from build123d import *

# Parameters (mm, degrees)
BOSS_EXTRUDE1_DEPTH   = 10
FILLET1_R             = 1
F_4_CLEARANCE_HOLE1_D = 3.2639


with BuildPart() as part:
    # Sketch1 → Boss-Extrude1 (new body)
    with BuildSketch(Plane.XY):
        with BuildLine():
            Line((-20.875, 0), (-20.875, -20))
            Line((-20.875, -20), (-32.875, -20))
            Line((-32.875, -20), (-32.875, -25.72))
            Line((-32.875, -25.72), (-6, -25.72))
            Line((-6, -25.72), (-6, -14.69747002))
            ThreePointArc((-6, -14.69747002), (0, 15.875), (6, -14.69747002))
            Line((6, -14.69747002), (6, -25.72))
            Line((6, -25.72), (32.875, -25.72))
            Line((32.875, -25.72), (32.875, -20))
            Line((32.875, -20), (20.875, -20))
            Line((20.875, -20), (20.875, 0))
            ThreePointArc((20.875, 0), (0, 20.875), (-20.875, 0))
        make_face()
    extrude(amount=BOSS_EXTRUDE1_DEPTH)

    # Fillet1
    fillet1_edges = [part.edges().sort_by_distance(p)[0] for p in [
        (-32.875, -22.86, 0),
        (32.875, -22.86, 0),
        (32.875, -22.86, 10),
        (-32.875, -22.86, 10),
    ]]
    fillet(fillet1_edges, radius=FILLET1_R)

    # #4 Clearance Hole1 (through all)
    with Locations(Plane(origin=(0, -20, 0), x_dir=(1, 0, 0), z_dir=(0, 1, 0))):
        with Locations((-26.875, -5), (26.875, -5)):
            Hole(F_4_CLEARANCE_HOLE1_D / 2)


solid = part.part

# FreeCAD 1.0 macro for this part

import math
import FreeCAD as App
import Part
import Sketcher
from FreeCAD import Vector
Q = App.Units.Quantity


def edges_at(feature, points):
    """Names of the edges that pass closest to the given points."""
    edges = feature.Shape.Edges
    near = lambda p: min(range(len(edges)), key=lambda i: edges[i].distToShape(Part.Vertex(*p))[0])
    return sorted({f"Edge{near(p) + 1}" for p in points})

doc = App.newDocument("Part")
body = doc.addObject("PartDesign::Body", "Body")

# Sketch on XY plane
sketch1 = body.newObject("Sketcher::SketchObject", "Sketch")
sketch1.AttachmentSupport = (doc.getObject("XY_Plane"), [""])
sketch1.MapMode = "FlatFace"
sketch1.addGeometry([
    Part.LineSegment(Vector(-21, 0, 0), Vector(-21, -20, 0)),  # 0
    Part.LineSegment(Vector(-21, -20, 0), Vector(-33, -20, 0)),  # 1
    Part.LineSegment(Vector(-33, -20, 0), Vector(-33, -26, 0)),  # 2
    Part.LineSegment(Vector(-33, -26, 0), Vector(-6, -26, 0)),  # 3
    Part.LineSegment(Vector(-6, -26, 0), Vector(-6, -15, 0)),  # 4
    Part.ArcOfCircle(Part.Circle(Vector(0, 0, 0), Vector(0, 0, 1), 16), math.radians(-68), math.radians(248)),  # 5
    Part.LineSegment(Vector(6, -15, 0), Vector(6, -26, 0)),  # 6
    Part.LineSegment(Vector(6, -26, 0), Vector(33, -26, 0)),  # 7
    Part.LineSegment(Vector(33, -26, 0), Vector(33, -20, 0)),  # 8
    Part.LineSegment(Vector(33, -20, 0), Vector(21, -20, 0)),  # 9
    Part.LineSegment(Vector(21, -20, 0), Vector(21, 0, 0)),  # 10
    Part.ArcOfCircle(Part.Circle(Vector(0, 0, 0), Vector(0, 0, 1), 21), math.radians(0), math.radians(180)),  # 11
], False)
sketch1.addConstraint([
    Sketcher.Constraint("Coincident", 0, 2, 1, 1),
    Sketcher.Constraint("Coincident", 1, 2, 2, 1),
    Sketcher.Constraint("Coincident", 2, 2, 3, 1),
    Sketcher.Constraint("Coincident", 3, 2, 4, 1),
    Sketcher.Constraint("Coincident", 4, 2, 5, 2),
    Sketcher.Constraint("Coincident", 5, 1, 6, 1),
    Sketcher.Constraint("Coincident", 6, 2, 7, 1),
    Sketcher.Constraint("Coincident", 7, 2, 8, 1),
    Sketcher.Constraint("Coincident", 8, 2, 9, 1),
    Sketcher.Constraint("Coincident", 9, 2, 10, 1),
    Sketcher.Constraint("Tangent", 10, 2, 11, 1),
    Sketcher.Constraint("Tangent", 11, 2, 0, 1),
    Sketcher.Constraint("Vertical", 0),
    Sketcher.Constraint("Horizontal", 1),
    Sketcher.Constraint("Vertical", 2),
    Sketcher.Constraint("Horizontal", 3),
    Sketcher.Constraint("Vertical", 4),
    Sketcher.Constraint("Vertical", 6),
    Sketcher.Constraint("Horizontal", 7),
    Sketcher.Constraint("Vertical", 8),
    Sketcher.Constraint("Horizontal", 9),
    Sketcher.Constraint("Vertical", 10),
    Sketcher.Constraint("Coincident", 5, 3, -1, 1),
    Sketcher.Constraint("Coincident", 11, 3, -1, 1),
    Sketcher.Constraint("Symmetric", 3, 2, 6, 2, -2),
    Sketcher.Constraint("Symmetric", 1, 2, 8, 2, -2),
    Sketcher.Constraint("DistanceX", 1, 2, 1, 1, Q("12 mm")),
    Sketcher.Constraint("DistanceY", 0, 2, 0, 1, Q("20 mm")),
    Sketcher.Constraint("DistanceX", 3, 2, -1, 1, Q("6 mm")),
    Sketcher.Constraint("Radius", 5, Q("15.875 mm")),
    Sketcher.Constraint("Radius", 11, Q("20.875 mm")),
    Sketcher.Constraint("DistanceY", 2, 2, 2, 1, Q("5.72 mm")),
])
pad1 = body.newObject("PartDesign::Pad", "Pad")
pad1.Profile = sketch1
pad1.Length = 10
doc.recompute()

fillet = body.newObject("PartDesign::Fillet", "Fillet")
fillet.Base = (pad1, edges_at(pad1, [
    (-32.875, -22.86, 0),
    (32.875, -22.86, 0),
    (32.875, -22.86, 10),
    (-32.875, -22.86, 10),
]))
fillet.Radius = 1

# Sketch on XZ plane
sketch2 = body.newObject("Sketcher::SketchObject", "Sketch001")
sketch2.AttachmentSupport = (doc.getObject("XZ_Plane"), [""])
sketch2.MapMode = "FlatFace"
sketch2.AttachmentOffset = App.Placement(Vector(0, 0, 20), App.Rotation())
sketch2.addGeometry([
    Part.Circle(Vector(-26.9, 5, 0), Vector(0, 0, 1), 1.6),
    Part.Circle(Vector(26.9, 5, 0), Vector(0, 0, 1), 1.6),
], False)
sketch2.addConstraint([
    Sketcher.Constraint("Equal", 0, 1),
    Sketcher.Constraint("Symmetric", 0, 3, 1, 3, -2),
    Sketcher.Constraint("DistanceY", -1, 1, 0, 3, Q("5 mm")),
    Sketcher.Constraint("Diameter", 0, Q("3.2639 mm")),
    Sketcher.Constraint("DistanceX", 0, 3, 1, 3, Q("53.75 mm")),
])
doc.recompute()
hole = body.newObject("PartDesign::Hole", "Hole")
hole.Profile = sketch2
hole.ThreadType = "None"
hole.Diameter = 3.2639
hole.DepthType = "ThroughAll"
hole.Reversed = True

doc.recompute()
